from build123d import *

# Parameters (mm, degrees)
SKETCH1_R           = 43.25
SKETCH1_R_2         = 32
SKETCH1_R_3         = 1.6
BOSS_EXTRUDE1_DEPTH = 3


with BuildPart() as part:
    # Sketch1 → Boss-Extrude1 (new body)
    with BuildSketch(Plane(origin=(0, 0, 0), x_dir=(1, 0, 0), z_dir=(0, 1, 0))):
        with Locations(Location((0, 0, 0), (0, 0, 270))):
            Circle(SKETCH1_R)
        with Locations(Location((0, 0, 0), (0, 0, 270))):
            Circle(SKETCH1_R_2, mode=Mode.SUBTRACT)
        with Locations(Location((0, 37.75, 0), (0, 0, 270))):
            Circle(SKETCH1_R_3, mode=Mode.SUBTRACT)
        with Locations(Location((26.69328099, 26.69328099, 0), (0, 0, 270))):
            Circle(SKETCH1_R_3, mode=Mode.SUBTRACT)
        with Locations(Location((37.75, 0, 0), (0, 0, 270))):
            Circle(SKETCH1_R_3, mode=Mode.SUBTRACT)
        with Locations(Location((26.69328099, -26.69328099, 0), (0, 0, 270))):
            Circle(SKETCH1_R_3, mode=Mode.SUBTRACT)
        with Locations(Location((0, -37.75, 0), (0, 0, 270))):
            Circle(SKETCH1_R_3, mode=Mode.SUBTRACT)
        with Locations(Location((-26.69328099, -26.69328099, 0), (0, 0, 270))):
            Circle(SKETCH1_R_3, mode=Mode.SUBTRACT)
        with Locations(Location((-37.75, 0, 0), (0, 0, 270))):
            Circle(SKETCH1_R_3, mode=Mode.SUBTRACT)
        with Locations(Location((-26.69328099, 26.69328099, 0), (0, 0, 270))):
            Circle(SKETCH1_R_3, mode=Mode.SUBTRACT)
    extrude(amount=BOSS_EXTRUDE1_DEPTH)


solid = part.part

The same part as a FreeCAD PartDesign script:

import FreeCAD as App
import Part
import Sketcher

V = App.Vector
Q = App.Units.Quantity

doc = App.newDocument("Part")
params = doc.addObject("Spreadsheet::Sheet", "Params")
for row, (alias, value) in enumerate([
    ("sketch1_diameter", "64 mm"),
    ("sketch1_diameter2", "86.5 mm"),
    ("sketch1_diameter3", "3.2 mm"),
    ("pad1_length", "3 mm"),
], start=1):
    params.set(f"A{row}", alias)
    params.set(f"B{row}", "=" + value)
    params.setAlias(f"B{row}", alias)

body = doc.addObject("PartDesign::Body", "Body")

# Sketch on XZ plane
sketch1 = body.newObject("Sketcher::SketchObject", "Sketch")
sketch1.AttachmentSupport = (doc.getObject("XZ_Plane"), [""])
sketch1.MapMode = "FlatFace"
sketch1.addGeometry(Part.Circle(V(0, 0, 0), V(0, 0, 1), 43.2), False)
sketch1.addGeometry(Part.Circle(V(-26.7, -26.7, 0), V(0, 0, 1), 1.6), False)
sketch1.addGeometry(Part.Circle(V(0, -37.8, 0), V(0, 0, 1), 1.6), False)
sketch1.addGeometry(Part.Circle(V(-37.8, 0, 0), V(0, 0, 1), 1.6), False)
sketch1.addGeometry(Part.Circle(V(-26.7, 26.7, 0), V(0, 0, 1), 1.6), False)
sketch1.addGeometry(Part.Circle(V(26.7, -26.7, 0), V(0, 0, 1), 1.6), False)
sketch1.addGeometry(Part.Circle(V(37.8, 0, 0), V(0, 0, 1), 1.6), False)
sketch1.addGeometry(Part.Circle(V(0, 0, 0), V(0, 0, 1), 32), False)
sketch1.addGeometry(Part.Circle(V(0, 37.8, 0), V(0, 0, 1), 1.6), False)
sketch1.addGeometry(Part.Circle(V(26.7, 26.7, 0), V(0, 0, 1), 1.6), False)
sketch1.addConstraint(Sketcher.Constraint("Coincident", 0, 3, -1, 1))
sketch1.addConstraint(Sketcher.Constraint("Coincident", 7, 3, -1, 1))
sketch1.addConstraint(Sketcher.Constraint("Equal", 1, 2))
sketch1.addConstraint(Sketcher.Constraint("Equal", 2, 3))
sketch1.addConstraint(Sketcher.Constraint("Equal", 3, 4))
sketch1.addConstraint(Sketcher.Constraint("Equal", 4, 5))
sketch1.addConstraint(Sketcher.Constraint("Equal", 5, 6))
sketch1.addConstraint(Sketcher.Constraint("Equal", 6, 8))
sketch1.addConstraint(Sketcher.Constraint("Equal", 8, 9))
sketch1.addConstraint(Sketcher.Constraint("Symmetric", 4, 3, 5, 3, -1, 1))
sketch1.addConstraint(Sketcher.Constraint("Symmetric", 3, 3, 6, 3, -1, 1))
sketch1.addConstraint(Sketcher.Constraint("Symmetric", 2, 3, 8, 3, -1, 1))
sketch1.addConstraint(Sketcher.Constraint("Symmetric", 1, 3, 9, 3, -1, 1))
sketch1.addConstraint(Sketcher.Constraint("Symmetric", 1, 3, 5, 3, -2))
sketch1.addConstraint(Sketcher.Constraint("PointOnObject", 2, 3, -2))
sketch1.addConstraint(Sketcher.Constraint("PointOnObject", 3, 3, -1))
sketch1.addConstraint(Sketcher.Constraint("Diameter", 7, Q("64 mm")))
sketch1.addConstraint(Sketcher.Constraint("Diameter", 0, Q("86.5 mm")))
sketch1.addConstraint(Sketcher.Constraint("Diameter", 1, Q("3.2 mm")))
sketch1.addConstraint(Sketcher.Constraint("DistanceY", 2, 3, -1, 1, Q("37.75 mm")))
sketch1.addConstraint(Sketcher.Constraint("DistanceX", 3, 3, -1, 1, Q("37.75 mm")))
sketch1.addConstraint(Sketcher.Constraint("DistanceX", 1, 3, -1, 1, Q("26.693281 mm")))
sketch1.addConstraint(Sketcher.Constraint("DistanceY", 1, 3, -1, 1, Q("26.693281 mm")))
sketch1.setExpression("Constraints[16]", "Params.sketch1_diameter")
sketch1.setExpression("Constraints[17]", "Params.sketch1_diameter2")
sketch1.setExpression("Constraints[18]", "Params.sketch1_diameter3")
pad1 = body.newObject("PartDesign::Pad", "Pad")
pad1.Profile = sketch1
pad1.setExpression("Length", "Params.pad1_length")
pad1.Reversed = True

doc.recompute()
